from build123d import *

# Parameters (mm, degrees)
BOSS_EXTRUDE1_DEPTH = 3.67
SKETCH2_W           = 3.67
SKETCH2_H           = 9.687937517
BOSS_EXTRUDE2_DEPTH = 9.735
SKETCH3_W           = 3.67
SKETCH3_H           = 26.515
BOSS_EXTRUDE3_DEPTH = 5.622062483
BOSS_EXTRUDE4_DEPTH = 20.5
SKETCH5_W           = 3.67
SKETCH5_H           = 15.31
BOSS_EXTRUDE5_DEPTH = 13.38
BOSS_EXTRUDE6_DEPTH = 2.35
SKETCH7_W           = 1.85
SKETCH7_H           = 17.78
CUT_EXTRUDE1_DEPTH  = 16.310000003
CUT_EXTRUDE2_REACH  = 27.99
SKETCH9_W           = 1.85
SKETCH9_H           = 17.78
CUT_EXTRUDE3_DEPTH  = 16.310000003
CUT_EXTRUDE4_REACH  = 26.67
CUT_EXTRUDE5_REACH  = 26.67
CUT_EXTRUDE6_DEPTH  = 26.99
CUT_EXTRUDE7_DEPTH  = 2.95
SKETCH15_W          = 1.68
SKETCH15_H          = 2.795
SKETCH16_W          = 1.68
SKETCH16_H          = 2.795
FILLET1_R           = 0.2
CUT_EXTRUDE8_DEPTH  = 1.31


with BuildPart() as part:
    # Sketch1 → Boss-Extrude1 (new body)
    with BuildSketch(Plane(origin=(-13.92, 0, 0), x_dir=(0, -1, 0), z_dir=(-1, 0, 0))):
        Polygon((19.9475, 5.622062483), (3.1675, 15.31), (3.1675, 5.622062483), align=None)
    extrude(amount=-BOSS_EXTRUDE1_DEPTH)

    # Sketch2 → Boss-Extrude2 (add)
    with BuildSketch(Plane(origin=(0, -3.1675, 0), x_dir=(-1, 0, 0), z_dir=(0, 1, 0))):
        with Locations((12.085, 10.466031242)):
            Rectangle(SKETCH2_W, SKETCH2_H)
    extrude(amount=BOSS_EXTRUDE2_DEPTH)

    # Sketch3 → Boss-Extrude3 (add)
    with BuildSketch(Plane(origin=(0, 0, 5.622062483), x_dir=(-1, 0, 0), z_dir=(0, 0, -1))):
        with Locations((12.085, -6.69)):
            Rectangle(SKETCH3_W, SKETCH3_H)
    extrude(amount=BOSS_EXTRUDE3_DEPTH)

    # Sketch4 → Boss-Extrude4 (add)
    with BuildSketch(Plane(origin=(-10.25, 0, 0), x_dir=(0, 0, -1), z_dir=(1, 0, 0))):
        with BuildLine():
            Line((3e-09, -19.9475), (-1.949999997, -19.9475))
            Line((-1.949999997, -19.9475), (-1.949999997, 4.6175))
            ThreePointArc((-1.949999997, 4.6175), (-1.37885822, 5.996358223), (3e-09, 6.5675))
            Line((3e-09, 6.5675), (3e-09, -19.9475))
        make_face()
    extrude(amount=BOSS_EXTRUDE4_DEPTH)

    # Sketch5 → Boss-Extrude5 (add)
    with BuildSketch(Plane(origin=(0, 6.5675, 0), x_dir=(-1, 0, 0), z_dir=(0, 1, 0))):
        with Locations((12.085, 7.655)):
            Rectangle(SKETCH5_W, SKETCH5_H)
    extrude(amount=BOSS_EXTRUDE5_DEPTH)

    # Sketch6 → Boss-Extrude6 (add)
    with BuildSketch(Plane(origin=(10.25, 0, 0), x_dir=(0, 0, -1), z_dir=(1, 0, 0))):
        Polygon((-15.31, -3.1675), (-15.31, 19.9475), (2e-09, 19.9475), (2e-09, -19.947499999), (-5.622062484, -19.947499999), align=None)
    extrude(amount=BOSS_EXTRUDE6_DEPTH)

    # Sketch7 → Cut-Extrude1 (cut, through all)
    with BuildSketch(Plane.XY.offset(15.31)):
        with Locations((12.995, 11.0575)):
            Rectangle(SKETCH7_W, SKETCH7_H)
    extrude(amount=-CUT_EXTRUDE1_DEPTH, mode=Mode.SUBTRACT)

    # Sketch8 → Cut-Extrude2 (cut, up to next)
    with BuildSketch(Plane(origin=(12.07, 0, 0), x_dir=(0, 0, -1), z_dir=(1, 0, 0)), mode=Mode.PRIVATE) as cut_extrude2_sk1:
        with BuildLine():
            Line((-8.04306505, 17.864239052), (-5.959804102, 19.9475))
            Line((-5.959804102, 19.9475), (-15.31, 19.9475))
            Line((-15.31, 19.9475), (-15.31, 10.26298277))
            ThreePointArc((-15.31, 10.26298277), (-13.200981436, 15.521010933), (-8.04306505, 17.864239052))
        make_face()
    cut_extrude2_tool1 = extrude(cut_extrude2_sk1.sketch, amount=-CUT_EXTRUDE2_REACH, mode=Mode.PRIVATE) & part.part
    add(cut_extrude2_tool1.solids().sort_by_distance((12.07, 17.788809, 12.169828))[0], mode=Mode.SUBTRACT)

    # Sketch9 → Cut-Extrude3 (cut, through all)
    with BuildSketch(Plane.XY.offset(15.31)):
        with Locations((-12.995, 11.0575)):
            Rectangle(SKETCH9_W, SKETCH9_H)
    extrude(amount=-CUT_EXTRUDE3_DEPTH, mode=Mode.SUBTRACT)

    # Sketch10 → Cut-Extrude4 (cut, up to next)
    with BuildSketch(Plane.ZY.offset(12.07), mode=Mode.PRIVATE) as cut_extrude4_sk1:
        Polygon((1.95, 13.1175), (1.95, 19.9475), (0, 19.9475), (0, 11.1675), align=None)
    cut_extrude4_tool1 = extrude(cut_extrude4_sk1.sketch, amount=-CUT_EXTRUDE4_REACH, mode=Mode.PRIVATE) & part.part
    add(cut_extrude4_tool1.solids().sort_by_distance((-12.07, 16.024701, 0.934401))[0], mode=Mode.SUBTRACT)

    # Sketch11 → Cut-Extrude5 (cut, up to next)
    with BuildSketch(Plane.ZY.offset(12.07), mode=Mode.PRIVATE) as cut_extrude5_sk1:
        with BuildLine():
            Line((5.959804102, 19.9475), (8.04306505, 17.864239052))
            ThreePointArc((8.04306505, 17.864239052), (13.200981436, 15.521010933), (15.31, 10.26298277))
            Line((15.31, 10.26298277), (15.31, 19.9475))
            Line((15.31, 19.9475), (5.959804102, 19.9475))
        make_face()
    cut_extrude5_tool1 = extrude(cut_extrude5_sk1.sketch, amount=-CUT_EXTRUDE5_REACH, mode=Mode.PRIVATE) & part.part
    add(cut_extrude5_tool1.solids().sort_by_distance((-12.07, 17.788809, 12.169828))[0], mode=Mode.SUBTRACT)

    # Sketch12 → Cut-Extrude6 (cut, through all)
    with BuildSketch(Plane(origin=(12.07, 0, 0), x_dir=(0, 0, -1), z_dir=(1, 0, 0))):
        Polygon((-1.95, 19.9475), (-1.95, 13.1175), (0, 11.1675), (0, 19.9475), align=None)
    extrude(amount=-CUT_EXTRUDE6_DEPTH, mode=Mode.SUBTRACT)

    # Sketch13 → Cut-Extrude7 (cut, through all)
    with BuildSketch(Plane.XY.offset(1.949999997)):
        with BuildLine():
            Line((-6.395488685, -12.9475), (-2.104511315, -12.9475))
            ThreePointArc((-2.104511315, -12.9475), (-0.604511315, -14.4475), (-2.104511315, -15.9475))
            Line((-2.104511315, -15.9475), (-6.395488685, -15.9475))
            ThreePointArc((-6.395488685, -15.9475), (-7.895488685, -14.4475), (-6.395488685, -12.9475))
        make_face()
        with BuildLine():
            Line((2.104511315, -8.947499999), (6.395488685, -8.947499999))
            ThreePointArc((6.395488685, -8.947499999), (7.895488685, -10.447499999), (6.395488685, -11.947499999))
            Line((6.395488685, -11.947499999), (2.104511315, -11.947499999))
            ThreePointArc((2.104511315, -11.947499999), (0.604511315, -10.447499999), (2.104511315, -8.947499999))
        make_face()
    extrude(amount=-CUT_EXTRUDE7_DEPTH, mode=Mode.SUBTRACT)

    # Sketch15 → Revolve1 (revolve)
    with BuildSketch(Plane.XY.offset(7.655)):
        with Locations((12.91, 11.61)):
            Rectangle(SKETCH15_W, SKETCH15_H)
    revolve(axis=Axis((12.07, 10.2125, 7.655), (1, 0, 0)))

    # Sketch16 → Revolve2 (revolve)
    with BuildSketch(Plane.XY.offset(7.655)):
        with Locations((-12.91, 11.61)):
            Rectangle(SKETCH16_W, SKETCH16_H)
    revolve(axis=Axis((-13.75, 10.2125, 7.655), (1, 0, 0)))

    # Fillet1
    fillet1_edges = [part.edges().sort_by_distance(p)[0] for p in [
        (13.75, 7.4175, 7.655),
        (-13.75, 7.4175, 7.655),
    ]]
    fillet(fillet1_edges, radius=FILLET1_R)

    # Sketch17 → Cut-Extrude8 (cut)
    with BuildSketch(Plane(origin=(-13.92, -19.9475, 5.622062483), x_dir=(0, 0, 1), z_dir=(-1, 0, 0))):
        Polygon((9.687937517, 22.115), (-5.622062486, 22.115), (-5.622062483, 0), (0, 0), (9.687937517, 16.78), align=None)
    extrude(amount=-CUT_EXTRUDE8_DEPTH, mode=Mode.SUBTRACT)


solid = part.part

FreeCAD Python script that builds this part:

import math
import FreeCAD as App
import Part
import Sketcher
Q = App.Units.Quantity


def edges_at(feature, points):
    """Names of the edges that pass closest to the given points."""
    edges = feature.Shape.Edges
    near = lambda p: min(range(len(edges)), key=lambda i: edges[i].distToShape(Part.Vertex(*p))[0])
    return sorted({f"Edge{near(p) + 1}" for p in points})


def add_polygon(sketch, points):
    """Adds a closed chain of lines whose ends are joined by coincident constraints."""
    first, n = sketch.GeometryCount, len(points)
    for a, b in zip(points, points[1:] + points[:1]):
        sketch.addGeometry(Part.LineSegment(App.Vector(*a, 0), App.Vector(*b, 0)), False)
    for i in range(n):
        sketch.addConstraint(Sketcher.Constraint("Coincident", first + i, 2, first + (i + 1) % n, 1))

doc = App.newDocument("Part")
params = doc.addObject("Spreadsheet::Sheet", "Params")
for row, (alias, value) in enumerate([
    ("sketch1_width", "16.78 mm"),
    ("pad1_length", "3.67 mm"),
    ("sketch2_width", "3.67 mm"),
    ("pad2_length", "9.735 mm"),
    ("sketch3_width", "3.67 mm"),
    ("pad3_length", "5.622062 mm"),
    ("sketch4_radius", "1.95 mm"),
    ("pad4_length", "20.5 mm"),
    ("sketch5_width", "3.67 mm"),
    ("sketch5_height", "15.31 mm"),
    ("pad5_length", "13.38 mm"),
    ("sketch6_height", "15.31 mm"),
    ("pad6_length", "2.35 mm"),
    ("sketch7_width", "1.85 mm"),
    ("sketch7_height", "17.78 mm"),
    ("sketch9_width", "1.85 mm"),
    ("sketch9_height", "17.78 mm"),
    ("sketch10_width", "6.83 mm"),
    ("sketch10_width2", "8.78 mm"),
    ("sketch12_width", "6.83 mm"),
    ("sketch12_width2", "8.78 mm"),
    ("sketch13_radius", "1.5 mm"),
    ("sketch14_width", "1.68 mm"),
    ("revolution_angle", "360 deg"),
    ("sketch15_width", "1.68 mm"),
    ("revolution2_angle", "360 deg"),
    ("fillet_radius", "0.2 mm"),
    ("sketch16_height", "15.31 mm"),
    ("pocket8_length", "1.31 mm"),
], start=1):
    params.set(f"A{row}", alias)
    params.set(f"B{row}", "=" + value)
    params.setAlias(f"B{row}", alias)

body = doc.addObject("PartDesign::Body", "Body")

# Sketch on YZ plane
sketch1 = doc.addObject("Sketcher::SketchObject", "Sketch")
body.addObject(sketch1)
sketch1.AttachmentSupport = (doc.YZ_Plane, [""])
sketch1.MapMode = "FlatFace"
sketch1.AttachmentOffset = App.Placement(App.Vector(0, 0, -13.92), App.Rotation())
add_polygon(sketch1, [(-19.9475, 5.622062), (-3.1675, 15.31), (-3.1675, 5.622062)])  # lines 0-2
sketch1.addConstraint([
    Sketcher.Constraint("Vertical", 1),
    Sketcher.Constraint("Horizontal", 2),
    Sketcher.Constraint("Angle", 0, Q("30 deg")),
    Sketcher.Constraint("DistanceX", 2, 2, 2, 1, 16.78),
    Sketcher.Constraint("DistanceY", -1, 1, 0, 2, 15.31),
    Sketcher.Constraint("DistanceX", 0, 2, -1, 1, 3.1675),
])
sketch1.setExpression("Constraints[6]", "Params.sketch1_width")
pad1 = doc.addObject("PartDesign::Pad", "Pad")
body.addObject(pad1)
pad1.Profile = sketch1
pad1.setExpression("Length", "Params.pad1_length")

# Sketch on XZ plane
sketch2 = doc.addObject("Sketcher::SketchObject", "Sketch001")
body.addObject(sketch2)
sketch2.AttachmentSupport = (doc.XZ_Plane, [""])
sketch2.MapMode = "FlatFace"
sketch2.AttachmentOffset = App.Placement(App.Vector(0, 0, 3.1675), App.Rotation())
add_polygon(sketch2, [(-10.25, 15.31), (-10.25, 5.622062), (-13.92, 5.622062), (-13.92, 15.31)])  # lines 0-3
sketch2.addConstraint([
    Sketcher.Constraint("Vertical", 0),
    Sketcher.Constraint("Horizontal", 1),
    Sketcher.Constraint("Vertical", 2),
    Sketcher.Constraint("Horizontal", 3),
    Sketcher.Constraint("DistanceX", 1, 2, 1, 1, 3.67),
    Sketcher.Constraint("DistanceX", 0, 2, -1, 1, 10.25),
    Sketcher.Constraint("DistanceY", -1, 1, 2, 2, 15.31),
    Sketcher.Constraint("DistanceY", 0, 2, 0, 1, 9.687938),
])
sketch2.setExpression("Constraints[8]", "Params.sketch2_width")
pad2 = doc.addObject("PartDesign::Pad", "Pad001")
body.addObject(pad2)
pad2.Profile = sketch2
pad2.setExpression("Length", "Params.pad2_length")
pad2.Reversed = True

# Sketch on XY plane
sketch3 = doc.addObject("Sketcher::SketchObject", "Sketch002")
body.addObject(sketch3)
sketch3.AttachmentSupport = (doc.XY_Plane, [""])
sketch3.MapMode = "FlatFace"
sketch3.AttachmentOffset = App.Placement(App.Vector(0, 0, 5.622062), App.Rotation())
add_polygon(sketch3, [(-10.25, 6.5675), (-10.25, -19.9475), (-13.92, -19.9475), (-13.92, 6.5675)])  # lines 0-3
sketch3.addConstraint([
    Sketcher.Constraint("Vertical", 0),
    Sketcher.Constraint("Horizontal", 1),
    Sketcher.Constraint("Vertical", 2),
    Sketcher.Constraint("Horizontal", 3),
    Sketcher.Constraint("DistanceX", 1, 2, 1, 1, 3.67),
    Sketcher.Constraint("DistanceY", 0, 2, 0, 1, 26.515),
    Sketcher.Constraint("DistanceX", 0, 2, -1, 1, 10.25),
    Sketcher.Constraint("DistanceY", 0, 2, -1, 1, 19.9475),
])
sketch3.setExpression("Constraints[8]", "Params.sketch3_width")
pad3 = doc.addObject("PartDesign::Pad", "Pad002")
body.addObject(pad3)
pad3.Profile = sketch3
pad3.setExpression("Length", "Params.pad3_length")
pad3.Reversed = True

# Sketch on YZ plane
sketch4 = doc.addObject("Sketcher::SketchObject", "Sketch003")
body.addObject(sketch4)
sketch4.AttachmentSupport = (doc.YZ_Plane, [""])
sketch4.MapMode = "FlatFace"
sketch4.AttachmentOffset = App.Placement(App.Vector(0, 0, -10.25), App.Rotation())
sketch4.addGeometry([
    Part.LineSegment(App.Vector(-19.9475, 1.95, 0), App.Vector(-19.9475, 0, 0)),
    Part.LineSegment(App.Vector(-19.9475, 0, 0), App.Vector(6.5675, 0, 0)),
    Part.ArcOfCircle(Part.Circle(App.Vector(4.6175, 0, 0), App.Vector(0, 0, 1), 1.95), math.radians(0), math.radians(90)),
    Part.LineSegment(App.Vector(4.6175, 1.95, 0), App.Vector(-19.9475, 1.95, 0)),
], False)
sketch4.addConstraint([
    Sketcher.Constraint("Coincident", 0, 2, 1, 1),
    Sketcher.Constraint("Coincident", 1, 2, 2, 1),
    Sketcher.Constraint("Tangent", 2, 2, 3, 1),
    Sketcher.Constraint("Coincident", 3, 2, 0, 1),
    Sketcher.Constraint("Vertical", 0),
    Sketcher.Constraint("Horizontal", 1),
    Sketcher.Constraint("Horizontal", 3),
    Sketcher.Constraint("PointOnObject", 2, 3, -1),
    Sketcher.Constraint("PointOnObject", 0, 2, -1),
    Sketcher.Constraint("Radius", 2, 1.95),
    Sketcher.Constraint("DistanceX", 1, 1, 1, 2, 26.515),
    Sketcher.Constraint("DistanceX", -1, 1, 2, 3, 4.6175),
])
sketch4.setExpression("Constraints[9]", "Params.sketch4_radius")
pad4 = doc.addObject("PartDesign::Pad", "Pad003")
body.addObject(pad4)
pad4.Profile = sketch4
pad4.setExpression("Length", "Params.pad4_length")

# Sketch on XZ plane
sketch5 = doc.addObject("Sketcher::SketchObject", "Sketch004")
body.addObject(sketch5)
sketch5.AttachmentSupport = (doc.XZ_Plane, [""])
sketch5.MapMode = "FlatFace"
sketch5.AttachmentOffset = App.Placement(App.Vector(0, 0, -6.5675), App.Rotation())
add_polygon(sketch5, [(-10.25, 15.31), (-10.25, 0), (-13.92, 0), (-13.92, 15.31)])  # lines 0-3
sketch5.addConstraint([
    Sketcher.Constraint("Vertical", 0),
    Sketcher.Constraint("Horizontal", 1),
    Sketcher.Constraint("Vertical", 2),
    Sketcher.Constraint("Horizontal", 3),
    Sketcher.Constraint("PointOnObject", 0, 2, -1),
    Sketcher.Constraint("DistanceX", 1, 2, 1, 1, 3.67),
    Sketcher.Constraint("DistanceY", 0, 2, 0, 1, 15.31),
    Sketcher.Constraint("DistanceX", 0, 2, -1, 1, 10.25),
])
sketch5.setExpression("Constraints[9]", "Params.sketch5_width")
sketch5.setExpression("Constraints[10]", "Params.sketch5_height")
pad5 = doc.addObject("PartDesign::Pad", "Pad004")
body.addObject(pad5)
pad5.Profile = sketch5
pad5.setExpression("Length", "Params.pad5_length")
pad5.Reversed = True

# Sketch on YZ plane
sketch6 = doc.addObject("Sketcher::SketchObject", "Sketch005")
body.addObject(sketch6)
sketch6.AttachmentSupport = (doc.YZ_Plane, [""])
sketch6.MapMode = "FlatFace"
sketch6.AttachmentOffset = App.Placement(App.Vector(0, 0, 10.25), App.Rotation())
add_polygon(sketch6, [(19.9475, 15.31), (-3.1675, 15.31), (-19.9475, 5.622062), (-19.9475, 0), (19.9475, 0)])  # lines 0-4
sketch6.addConstraint([
    Sketcher.Constraint("Horizontal", 0),
    Sketcher.Constraint("Vertical", 2),
    Sketcher.Constraint("Horizontal", 3),
    Sketcher.Constraint("Vertical", 4),
    Sketcher.Constraint("Symmetric", 2, 2, 3, 2, -1, 1),
    Sketcher.Constraint("Angle", 1, Q("-150 deg")),
    Sketcher.Constraint("DistanceY", 4, 1, 4, 2, 15.31),
    Sketcher.Constraint("DistanceX", 0, 2, 0, 1, 23.115),
    Sketcher.Constraint("DistanceX", 3, 1, 3, 2, 39.895),
])
sketch6.setExpression("Constraints[11]", "Params.sketch6_height")
pad6 = doc.addObject("PartDesign::Pad", "Pad005")
body.addObject(pad6)
pad6.Profile = sketch6
pad6.setExpression("Length", "Params.pad6_length")

# Sketch on XY plane
sketch7 = doc.addObject("Sketcher::SketchObject", "Sketch006")
body.addObject(sketch7)
sketch7.AttachmentSupport = (doc.XY_Plane, [""])
sketch7.MapMode = "FlatFace"
sketch7.AttachmentOffset = App.Placement(App.Vector(0, 0, 15.31), App.Rotation())
add_polygon(sketch7, [(12.07, 19.9475), (12.07, 2.1675), (13.92, 2.1675), (13.92, 19.9475)])  # lines 0-3
sketch7.addConstraint([
    Sketcher.Constraint("Vertical", 0),
    Sketcher.Constraint("Horizontal", 1),
    Sketcher.Constraint("Vertical", 2),
    Sketcher.Constraint("Horizontal", 3),
    Sketcher.Constraint("DistanceX", 1, 1, 1, 2, 1.85),
    Sketcher.Constraint("DistanceY", 0, 2, 0, 1, 17.78),
    Sketcher.Constraint("DistanceX", -1, 1, 0, 2, 12.07),
    Sketcher.Constraint("DistanceY", -1, 1, 0, 2, 2.1675),
])
sketch7.setExpression("Constraints[8]", "Params.sketch7_width")
sketch7.setExpression("Constraints[9]", "Params.sketch7_height")
pocket1 = doc.addObject("PartDesign::Pocket", "Pocket")
body.addObject(pocket1)
pocket1.Profile = sketch7
pocket1.Type = "ThroughAll"

# Sketch on YZ plane
sketch8 = doc.addObject("Sketcher::SketchObject", "Sketch007")
body.addObject(sketch8)
sketch8.AttachmentSupport = (doc.YZ_Plane, [""])
sketch8.MapMode = "FlatFace"
sketch8.AttachmentOffset = App.Placement(App.Vector(0, 0, 12.07), App.Rotation())
sketch8.addGeometry([
    Part.LineSegment(App.Vector(17.864239, 8.043065, 0), App.Vector(19.9475, 5.959804, 0)),
    Part.LineSegment(App.Vector(19.9475, 5.959804, 0), App.Vector(19.9475, 15.31, 0)),
    Part.LineSegment(App.Vector(19.9475, 15.31, 0), App.Vector(10.262983, 15.31, 0)),
    Part.ArcOfCircle(Part.Circle(App.Vector(10.262983, 7.701053, 0), App.Vector(0, 0, 1), 7.608947), math.radians(2.576235), math.radians(90)),
], False)
sketch8.addConstraint([
    Sketcher.Constraint("Coincident", 0, 2, 1, 1),
    Sketcher.Constraint("Coincident", 1, 2, 2, 1),
    Sketcher.Constraint("Tangent", 2, 2, 3, 2),
    Sketcher.Constraint("Coincident", 3, 1, 0, 1),
    Sketcher.Constraint("Vertical", 1),
    Sketcher.Constraint("Horizontal", 2),
    Sketcher.Constraint("Angle", 0, Q("-45 deg")),
    Sketcher.Constraint("DistanceY", -1, 1, 1, 2, 15.31),
    Sketcher.Constraint("Radius", 3, 7.608947),
    Sketcher.Constraint("DistanceX", -1, 1, 0, 2, 19.9475),
    Sketcher.Constraint("DistanceX", 2, 2, 2, 1, 9.684517),
    Sketcher.Constraint("DistanceY", 1, 1, 1, 2, 9.350196),
])
pocket2 = doc.addObject("PartDesign::Pocket", "Pocket001")
body.addObject(pocket2)
pocket2.Profile = sketch8
pocket2.Type = "UpToFirst"

# Sketch on XY plane
sketch9 = doc.addObject("Sketcher::SketchObject", "Sketch008")
body.addObject(sketch9)
sketch9.AttachmentSupport = (doc.XY_Plane, [""])
sketch9.MapMode = "FlatFace"
sketch9.AttachmentOffset = App.Placement(App.Vector(0, 0, 15.31), App.Rotation())
add_polygon(sketch9, [(-13.92, 19.9475), (-13.92, 2.1675), (-12.07, 2.1675), (-12.07, 19.9475)])  # lines 0-3
sketch9.addConstraint([
    Sketcher.Constraint("Vertical", 0),
    Sketcher.Constraint("Horizontal", 1),
    Sketcher.Constraint("Vertical", 2),
    Sketcher.Constraint("Horizontal", 3),
    Sketcher.Constraint("DistanceX", 1, 1, 1, 2, 1.85),
    Sketcher.Constraint("DistanceY", 0, 2, 0, 1, 17.78),
    Sketcher.Constraint("DistanceX", 0, 2, -1, 1, 13.92),
    Sketcher.Constraint("DistanceY", -1, 1, 0, 2, 2.1675),
])
sketch9.setExpression("Constraints[8]", "Params.sketch9_width")
sketch9.setExpression("Constraints[9]", "Params.sketch9_height")
pocket3 = doc.addObject("PartDesign::Pocket", "Pocket002")
body.addObject(pocket3)
pocket3.Profile = sketch9
pocket3.Type = "ThroughAll"

# Sketch on YZ plane
sketch10 = doc.addObject("Sketcher::SketchObject", "Sketch009")
body.addObject(sketch10)
sketch10.AttachmentSupport = (doc.YZ_Plane, [""])
sketch10.MapMode = "FlatFace"
sketch10.AttachmentOffset = App.Placement(App.Vector(0, 0, -12.07), App.Rotation())
add_polygon(sketch10, [(13.1175, 1.95), (19.9475, 1.95), (19.9475, 0), (11.1675, 0)])  # lines 0-3
sketch10.addConstraint([
    Sketcher.Constraint("Horizontal", 0),
    Sketcher.Constraint("Vertical", 1),
    Sketcher.Constraint("Horizontal", 2),
    Sketcher.Constraint("PointOnObject", 1, 2, -1),
    Sketcher.Constraint("Angle", 3, Q("45 deg")),
    Sketcher.Constraint("DistanceX", 0, 1, 0, 2, 6.83),
    Sketcher.Constraint("DistanceX", 2, 2, 2, 1, 8.78),
    Sketcher.Constraint("DistanceX", -1, 1, 0, 2, 19.9475),
])
sketch10.setExpression("Constraints[9]", "Params.sketch10_width")
sketch10.setExpression("Constraints[10]", "Params.sketch10_width2")
pocket4 = doc.addObject("PartDesign::Pocket", "Pocket003")
body.addObject(pocket4)
pocket4.Profile = sketch10
pocket4.Type = "UpToFirst"
pocket4.Reversed = True

# Sketch on YZ plane
sketch11 = doc.addObject("Sketcher::SketchObject", "Sketch010")
body.addObject(sketch11)
sketch11.AttachmentSupport = (doc.YZ_Plane, [""])
sketch11.MapMode = "FlatFace"
sketch11.AttachmentOffset = App.Placement(App.Vector(0, 0, -12.07), App.Rotation())
sketch11.addGeometry([
    Part.LineSegment(App.Vector(19.9475, 5.959804, 0), App.Vector(17.864239, 8.043065, 0)),
    Part.ArcOfCircle(Part.Circle(App.Vector(10.262983, 7.701053, 0), App.Vector(0, 0, 1), 7.608947), math.radians(2.576235), math.radians(90)),
    Part.LineSegment(App.Vector(10.262983, 15.31, 0), App.Vector(19.9475, 15.31, 0)),
    Part.LineSegment(App.Vector(19.9475, 15.31, 0), App.Vector(19.9475, 5.959804, 0)),
], False)
sketch11.addConstraint([
    Sketcher.Constraint("Coincident", 0, 2, 1, 1),
    Sketcher.Constraint("Tangent", 1, 2, 2, 1),
    Sketcher.Constraint("Coincident", 2, 2, 3, 1),
    Sketcher.Constraint("Coincident", 3, 2, 0, 1),
    Sketcher.Constraint("Horizontal", 2),
    Sketcher.Constraint("Vertical", 3),
    Sketcher.Constraint("Angle", 0, Q("135 deg")),
    Sketcher.Constraint("DistanceY", -1, 1, 1, 2, 15.31),
    Sketcher.Constraint("Radius", 1, 7.608947),
    Sketcher.Constraint("DistanceX", -1, 1, 2, 2, 19.9475),
    Sketcher.Constraint("DistanceX", 2, 1, 2, 2, 9.684517),
    Sketcher.Constraint("DistanceY", 3, 2, 3, 1, 9.350196),
])
pocket5 = doc.addObject("PartDesign::Pocket", "Pocket004")
body.addObject(pocket5)
pocket5.Profile = sketch11
pocket5.Type = "UpToFirst"
pocket5.Reversed = True

# Sketch on YZ plane
sketch12 = doc.addObject("Sketcher::SketchObject", "Sketch011")
body.addObject(sketch12)
sketch12.AttachmentSupport = (doc.YZ_Plane, [""])
sketch12.MapMode = "FlatFace"
sketch12.AttachmentOffset = App.Placement(App.Vector(0, 0, 12.07), App.Rotation())
add_polygon(sketch12, [(19.9475, 1.95), (13.1175, 1.95), (11.1675, 0), (19.9475, 0)])  # lines 0-3
sketch12.addConstraint([
    Sketcher.Constraint("Horizontal", 0),
    Sketcher.Constraint("Horizontal", 2),
    Sketcher.Constraint("Vertical", 3),
    Sketcher.Constraint("PointOnObject", 1, 2, -1),
    Sketcher.Constraint("Angle", 1, Q("-135 deg")),
    Sketcher.Constraint("DistanceX", 0, 2, 0, 1, 6.83),
    Sketcher.Constraint("DistanceX", 2, 1, 2, 2, 8.78),
    Sketcher.Constraint("DistanceX", -1, 1, 0, 2, 13.1175),
])
sketch12.setExpression("Constraints[9]", "Params.sketch12_width")
sketch12.setExpression("Constraints[10]", "Params.sketch12_width2")
pocket6 = doc.addObject("PartDesign::Pocket", "Pocket005")
body.addObject(pocket6)
pocket6.Profile = sketch12
pocket6.Type = "ThroughAll"

# Sketch on XY plane
sketch13 = doc.addObject("Sketcher::SketchObject", "Sketch012")
body.addObject(sketch13)
sketch13.AttachmentSupport = (doc.XY_Plane, [""])
sketch13.MapMode = "FlatFace"
sketch13.AttachmentOffset = App.Placement(App.Vector(0, 0, 1.95), App.Rotation())
sketch13.addGeometry([
    Part.LineSegment(App.Vector(-2.104511, -12.9475, 0), App.Vector(-6.395489, -12.9475, 0)),  # 0
    Part.ArcOfCircle(Part.Circle(App.Vector(-6.395489, -14.4475, 0), App.Vector(0, 0, 1), 1.5), math.radians(90), math.radians(270)),  # 1
    Part.LineSegment(App.Vector(-6.395489, -15.9475, 0), App.Vector(-2.104511, -15.9475, 0)),  # 2
    Part.ArcOfCircle(Part.Circle(App.Vector(-2.104511, -14.4475, 0), App.Vector(0, 0, 1), 1.5), math.radians(-90), math.radians(90)),  # 3
    Part.LineSegment(App.Vector(6.395489, -8.9475, 0), App.Vector(2.104511, -8.9475, 0)),  # 4
    Part.ArcOfCircle(Part.Circle(App.Vector(2.104511, -10.4475, 0), App.Vector(0, 0, 1), 1.5), math.radians(90), math.radians(270)),  # 5
    Part.LineSegment(App.Vector(2.104511, -11.9475, 0), App.Vector(6.395489, -11.9475, 0)),  # 6
    Part.ArcOfCircle(Part.Circle(App.Vector(6.395489, -10.4475, 0), App.Vector(0, 0, 1), 1.5), math.radians(-90), math.radians(90)),  # 7
], False)
sketch13.addConstraint([
    Sketcher.Constraint("Tangent", 0, 2, 1, 1),
    Sketcher.Constraint("Tangent", 1, 2, 2, 1),
    Sketcher.Constraint("Tangent", 2, 2, 3, 1),
    Sketcher.Constraint("Tangent", 3, 2, 0, 1),
    Sketcher.Constraint("Tangent", 4, 2, 5, 1),
    Sketcher.Constraint("Tangent", 5, 2, 6, 1),
    Sketcher.Constraint("Tangent", 6, 2, 7, 1),
    Sketcher.Constraint("Tangent", 7, 2, 4, 1),
    Sketcher.Constraint("Horizontal", 0),
    Sketcher.Constraint("Horizontal", 2),
    Sketcher.Constraint("Horizontal", 4),
    Sketcher.Constraint("Horizontal", 6),
    Sketcher.Constraint("Equal", 3, 5),
    Sketcher.Constraint("Equal", 2, 4),
    Sketcher.Constraint("Radius", 1, 1.5),
    Sketcher.Constraint("DistanceY", 3, 3, 5, 3, 4.0),
    Sketcher.Constraint("DistanceX", 1, 3, 5, 3, 8.5),
    Sketcher.Constraint("DistanceY", 1, 3, -1, 1, 14.4475),
    Sketcher.Constraint("DistanceX", 0, 2, 0, 1, 4.290977),
    Sketcher.Constraint("DistanceX", 1, 3, -1, 1, 6.395489),
])
sketch13.setExpression("Constraints[14]", "Params.sketch13_radius")
pocket7 = doc.addObject("PartDesign::Pocket", "Pocket006")
body.addObject(pocket7)
pocket7.Profile = sketch13
pocket7.Type = "ThroughAll"

# Sketch on XY plane
sketch14 = doc.addObject("Sketcher::SketchObject", "Sketch013")
body.addObject(sketch14)
sketch14.AttachmentSupport = (doc.XY_Plane, [""])
sketch14.MapMode = "FlatFace"
sketch14.AttachmentOffset = App.Placement(App.Vector(0, 0, 7.655), App.Rotation())
add_polygon(sketch14, [(12.07, 13.0075), (12.07, 10.2125), (13.75, 10.2125), (13.75, 13.0075)])  # lines 0-3
sketch14.addGeometry(Part.LineSegment(App.Vector(12.07, 10.2125, 0), App.Vector(13.75, 10.2125, 0)), True)  # axis
sketch14.addConstraint([
    Sketcher.Constraint("Vertical", 0),
    Sketcher.Constraint("Horizontal", 1),
    Sketcher.Constraint("Vertical", 2),
    Sketcher.Constraint("Horizontal", 3),
    Sketcher.Constraint("Horizontal", 4),
    Sketcher.Constraint("Coincident", 4, 1, 0, 2),
    Sketcher.Constraint("Vertical", 2, 2, 4, 2),
    Sketcher.Constraint("DistanceX", 1, 1, 1, 2, 1.68),
    Sketcher.Constraint("DistanceY", 0, 2, 0, 1, 2.795),
    Sketcher.Constraint("DistanceX", -1, 1, 0, 2, 12.07),
    Sketcher.Constraint("DistanceY", -1, 1, 0, 2, 10.2125),
])
sketch14.setExpression("Constraints[11]", "Params.sketch14_width")
revolution = doc.addObject("PartDesign::Revolution", "Revolution")
body.addObject(revolution)
revolution.Profile = sketch14
revolution.ReferenceAxis = (sketch14, ["Axis0"])
revolution.setExpression("Angle", "Params.revolution_angle")

# Sketch on XY plane
sketch15 = doc.addObject("Sketcher::SketchObject", "Sketch014")
body.addObject(sketch15)
sketch15.AttachmentSupport = (doc.XY_Plane, [""])
sketch15.MapMode = "FlatFace"
sketch15.AttachmentOffset = App.Placement(App.Vector(0, 0, 7.655), App.Rotation())
add_polygon(sketch15, [(-13.75, 13.0075), (-13.75, 10.2125), (-12.07, 10.2125), (-12.07, 13.0075)])  # lines 0-3
sketch15.addGeometry(Part.LineSegment(App.Vector(-13.75, 10.2125, 0), App.Vector(-12.07, 10.2125, 0)), True)  # axis
sketch15.addConstraint([
    Sketcher.Constraint("Vertical", 0),
    Sketcher.Constraint("Horizontal", 1),
    Sketcher.Constraint("Vertical", 2),
    Sketcher.Constraint("Horizontal", 3),
    Sketcher.Constraint("Horizontal", 4),
    Sketcher.Constraint("Coincident", 4, 1, 0, 2),
    Sketcher.Constraint("Vertical", 2, 2, 4, 2),
    Sketcher.Constraint("DistanceX", 1, 1, 1, 2, 1.68),
    Sketcher.Constraint("DistanceY", 0, 2, 0, 1, 2.795),
    Sketcher.Constraint("DistanceX", 0, 2, -1, 1, 13.75),
    Sketcher.Constraint("DistanceY", -1, 1, 0, 2, 10.2125),
])
sketch15.setExpression("Constraints[11]", "Params.sketch15_width")
revolution2 = doc.addObject("PartDesign::Revolution", "Revolution001")
body.addObject(revolution2)
revolution2.Profile = sketch15
revolution2.ReferenceAxis = (sketch15, ["Axis0"])
revolution2.setExpression("Angle", "Params.revolution2_angle")
doc.recompute()

fillet = doc.addObject("PartDesign::Fillet", "Fillet")
body.addObject(fillet)
fillet.Base = (revolution2, edges_at(revolution2, [(13.75, 7.418, 7.655), (-13.75, 7.418, 7.655)]))
fillet.setExpression("Radius", "Params.fillet_radius")

# Sketch on YZ plane
sketch16 = doc.addObject("Sketcher::SketchObject", "Sketch015")
body.addObject(sketch16)
sketch16.AttachmentSupport = (doc.YZ_Plane, [""])
sketch16.MapMode = "FlatFace"
sketch16.AttachmentOffset = App.Placement(App.Vector(0, 0, -13.92), App.Rotation())
add_polygon(sketch16, [(2.1675, 15.31), (2.1675, 0), (-19.9475, 0), (-19.9475, 5.622062), (-3.1675, 15.31)])  # lines 0-4
sketch16.addConstraint([
    Sketcher.Constraint("Vertical", 0),
    Sketcher.Constraint("Horizontal", 1),
    Sketcher.Constraint("Vertical", 2),
    Sketcher.Constraint("Horizontal", 4),
    Sketcher.Constraint("PointOnObject", 0, 2, -1),
    Sketcher.Constraint("Angle", 3, Q("30 deg")),
    Sketcher.Constraint("DistanceY", 0, 2, 0, 1, 15.31),
    Sketcher.Constraint("DistanceX", 1, 2, 1, 1, 22.115),
    Sketcher.Constraint("DistanceX", 4, 1, 4, 2, 5.335),
    Sketcher.Constraint("DistanceX", -1, 1, 0, 2, 2.1675),
])
sketch16.setExpression("Constraints[11]", "Params.sketch16_height")
pocket8 = doc.addObject("PartDesign::Pocket", "Pocket007")
body.addObject(pocket8)
pocket8.Profile = sketch16
pocket8.setExpression("Length", "Params.pocket8_length")
pocket8.Reversed = True

doc.recompute()
